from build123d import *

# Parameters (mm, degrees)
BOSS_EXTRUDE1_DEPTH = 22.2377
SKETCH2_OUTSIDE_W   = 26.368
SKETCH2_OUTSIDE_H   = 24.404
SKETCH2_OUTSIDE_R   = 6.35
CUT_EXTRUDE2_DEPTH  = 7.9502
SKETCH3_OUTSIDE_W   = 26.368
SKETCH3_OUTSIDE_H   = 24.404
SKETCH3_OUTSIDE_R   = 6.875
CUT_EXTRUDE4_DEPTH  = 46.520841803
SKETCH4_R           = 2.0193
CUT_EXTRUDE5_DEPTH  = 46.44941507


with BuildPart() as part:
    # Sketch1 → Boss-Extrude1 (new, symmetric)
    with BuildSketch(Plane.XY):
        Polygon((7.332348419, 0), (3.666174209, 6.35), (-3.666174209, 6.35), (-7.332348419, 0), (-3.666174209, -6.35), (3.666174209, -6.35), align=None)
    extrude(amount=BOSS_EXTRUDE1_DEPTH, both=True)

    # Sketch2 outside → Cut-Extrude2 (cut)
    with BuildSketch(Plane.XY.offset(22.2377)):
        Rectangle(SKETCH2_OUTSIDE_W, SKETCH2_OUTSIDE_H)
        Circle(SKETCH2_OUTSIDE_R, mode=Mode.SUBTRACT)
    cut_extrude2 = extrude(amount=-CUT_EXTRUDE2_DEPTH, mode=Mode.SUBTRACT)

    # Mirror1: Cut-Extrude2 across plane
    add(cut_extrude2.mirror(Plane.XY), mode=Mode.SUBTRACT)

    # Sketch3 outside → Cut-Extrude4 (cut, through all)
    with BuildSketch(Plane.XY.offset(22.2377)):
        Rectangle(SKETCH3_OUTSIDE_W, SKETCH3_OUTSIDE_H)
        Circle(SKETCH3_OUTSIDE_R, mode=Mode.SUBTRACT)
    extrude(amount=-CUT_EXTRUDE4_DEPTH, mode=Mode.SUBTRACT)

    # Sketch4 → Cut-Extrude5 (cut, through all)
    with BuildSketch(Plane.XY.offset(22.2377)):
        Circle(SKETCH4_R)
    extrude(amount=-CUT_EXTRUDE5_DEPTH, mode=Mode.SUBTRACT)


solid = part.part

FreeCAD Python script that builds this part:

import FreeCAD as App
import Part
import Sketcher
Q = App.Units.Quantity


def add_polygon(sketch, points):
    """Adds a closed chain of lines whose ends are joined by coincident constraints."""
    first, n = sketch.GeometryCount, len(points)
    for a, b in zip(points, points[1:] + points[:1]):
        sketch.addGeometry(Part.LineSegment(App.Vector(*a, 0), App.Vector(*b, 0)), False)
    for i in range(n):
        sketch.addConstraint(Sketcher.Constraint("Coincident", first + i, 2, first + (i + 1) % n, 1))

doc = App.newDocument("Part")
body = doc.addObject("PartDesign::Body", "Body")

# Sketch on XY plane
sketch1 = body.newObject("Sketcher::SketchObject", "Sketch")
sketch1.AttachmentSupport = (doc.getObject("XY_Plane"), [""])
sketch1.MapMode = "FlatFace"
add_polygon(sketch1, [(7, 0), (4, 6), (-4, 6), (-7, 0), (-4, -6), (4, -6)])  # lines 0-5
sketch1.addConstraint([
    Sketcher.Constraint("Horizontal", 1),
    Sketcher.Constraint("Horizontal", 4),
    Sketcher.Constraint("Symmetric", 0, 2, 3, 2, -1, 1),
    Sketcher.Constraint("Symmetric", 2, 2, 5, 2, -1, 1),
    Sketcher.Constraint("PointOnObject", 2, 2, -1),
    Sketcher.Constraint("Parallel", 2, 5),
    Sketcher.Constraint("Vertical", 1, 2, 3, 2),
    Sketcher.Constraint("Angle", 0, Q("120 deg")),
    Sketcher.Constraint("DistanceY", 3, 2, 1, 2, Q("0.5 in")),
    Sketcher.Constraint("DistanceX", 1, 2, 1, 1, 7.332348),
])
pad1 = body.newObject("PartDesign::Pad", "Pad")
pad1.Profile = sketch1
pad1.Length = Q("1.751 in")
pad1.Midplane = True

# Sketch on XY plane
sketch2 = body.newObject("Sketcher::SketchObject", "Sketch001")
sketch2.AttachmentSupport = (doc.getObject("XY_Plane"), [""])
sketch2.MapMode = "FlatFace"
sketch2.AttachmentOffset = App.Placement(App.Vector(0, 0, 0.8755 * 25.4), App.Rotation())
add_polygon(sketch2, [(-13, 12), (-13, -12), (13, -12), (13, 12)])  # lines 0-3
sketch2.addGeometry(Part.Circle(App.Vector(0, 0, 0), App.Vector(0, 0, 1), 6), False)  # 4
sketch2.addConstraint([
    Sketcher.Constraint("Vertical", 0),
    Sketcher.Constraint("Horizontal", 1),
    Sketcher.Constraint("Vertical", 2),
    Sketcher.Constraint("Horizontal", 3),
    Sketcher.Constraint("Coincident", 4, 3, -1, 1),
    Sketcher.Constraint("Symmetric", 0, 2, 2, 2, -1, 1),
    Sketcher.Constraint("Diameter", 4, Q("0.5 in")),
    Sketcher.Constraint("DistanceX", 1, 1, 1, 2, 26.368),
    Sketcher.Constraint("DistanceY", 0, 2, 0, 1, 24.404),
])
pocket1 = body.newObject("PartDesign::Pocket", "Pocket")
pocket1.Profile = sketch2
pocket1.Length = Q("0.313 in")
doc.recompute()

mirrored = body.newObject("PartDesign::Mirrored", "Mirrored")
mirrored.Originals = [pocket1]
mirrored.MirrorPlane = (doc.getObject("XY_Plane"), [""])
body.Tip = mirrored

# Sketch on XY plane
sketch3 = body.newObject("Sketcher::SketchObject", "Sketch002")
sketch3.AttachmentSupport = (doc.getObject("XY_Plane"), [""])
sketch3.MapMode = "FlatFace"
sketch3.AttachmentOffset = App.Placement(App.Vector(0, 0, 0.8755 * 25.4), App.Rotation())
add_polygon(sketch3, [(-13, 12), (-13, -12), (13, -12), (13, 12)])  # lines 0-3
sketch3.addGeometry(Part.Circle(App.Vector(0, 0, 0), App.Vector(0, 0, 1), 7), False)  # 4
sketch3.addConstraint([
    Sketcher.Constraint("Vertical", 0),
    Sketcher.Constraint("Horizontal", 1),
    Sketcher.Constraint("Vertical", 2),
    Sketcher.Constraint("Horizontal", 3),
    Sketcher.Constraint("Coincident", 4, 3, -1, 1),
    Sketcher.Constraint("Symmetric", 0, 2, 2, 2, -1, 1),
    Sketcher.Constraint("Diameter", 4, 13.75),
    Sketcher.Constraint("DistanceX", 1, 1, 1, 2, 26.368),
    Sketcher.Constraint("DistanceY", 0, 2, 0, 1, 24.404),
])
pocket2 = body.newObject("PartDesign::Pocket", "Pocket001")
pocket2.Profile = sketch3
pocket2.Type = "ThroughAll"

# Sketch on XY plane
sketch4 = body.newObject("Sketcher::SketchObject", "Sketch003")
sketch4.AttachmentSupport = (doc.getObject("XY_Plane"), [""])
sketch4.MapMode = "FlatFace"
sketch4.AttachmentOffset = App.Placement(App.Vector(0, 0, 0.8755 * 25.4), App.Rotation())
sketch4.addGeometry(Part.Circle(App.Vector(0, 0, 0), App.Vector(0, 0, 1), 2), False)
sketch4.addConstraint([
    Sketcher.Constraint("Coincident", 0, 3, -1, 1),
    Sketcher.Constraint("Diameter", 0, Q("0.159 in")),
])
pocket3 = body.newObject("PartDesign::Pocket", "Pocket002")
pocket3.Profile = sketch4
pocket3.Type = "ThroughAll"

doc.recompute()
